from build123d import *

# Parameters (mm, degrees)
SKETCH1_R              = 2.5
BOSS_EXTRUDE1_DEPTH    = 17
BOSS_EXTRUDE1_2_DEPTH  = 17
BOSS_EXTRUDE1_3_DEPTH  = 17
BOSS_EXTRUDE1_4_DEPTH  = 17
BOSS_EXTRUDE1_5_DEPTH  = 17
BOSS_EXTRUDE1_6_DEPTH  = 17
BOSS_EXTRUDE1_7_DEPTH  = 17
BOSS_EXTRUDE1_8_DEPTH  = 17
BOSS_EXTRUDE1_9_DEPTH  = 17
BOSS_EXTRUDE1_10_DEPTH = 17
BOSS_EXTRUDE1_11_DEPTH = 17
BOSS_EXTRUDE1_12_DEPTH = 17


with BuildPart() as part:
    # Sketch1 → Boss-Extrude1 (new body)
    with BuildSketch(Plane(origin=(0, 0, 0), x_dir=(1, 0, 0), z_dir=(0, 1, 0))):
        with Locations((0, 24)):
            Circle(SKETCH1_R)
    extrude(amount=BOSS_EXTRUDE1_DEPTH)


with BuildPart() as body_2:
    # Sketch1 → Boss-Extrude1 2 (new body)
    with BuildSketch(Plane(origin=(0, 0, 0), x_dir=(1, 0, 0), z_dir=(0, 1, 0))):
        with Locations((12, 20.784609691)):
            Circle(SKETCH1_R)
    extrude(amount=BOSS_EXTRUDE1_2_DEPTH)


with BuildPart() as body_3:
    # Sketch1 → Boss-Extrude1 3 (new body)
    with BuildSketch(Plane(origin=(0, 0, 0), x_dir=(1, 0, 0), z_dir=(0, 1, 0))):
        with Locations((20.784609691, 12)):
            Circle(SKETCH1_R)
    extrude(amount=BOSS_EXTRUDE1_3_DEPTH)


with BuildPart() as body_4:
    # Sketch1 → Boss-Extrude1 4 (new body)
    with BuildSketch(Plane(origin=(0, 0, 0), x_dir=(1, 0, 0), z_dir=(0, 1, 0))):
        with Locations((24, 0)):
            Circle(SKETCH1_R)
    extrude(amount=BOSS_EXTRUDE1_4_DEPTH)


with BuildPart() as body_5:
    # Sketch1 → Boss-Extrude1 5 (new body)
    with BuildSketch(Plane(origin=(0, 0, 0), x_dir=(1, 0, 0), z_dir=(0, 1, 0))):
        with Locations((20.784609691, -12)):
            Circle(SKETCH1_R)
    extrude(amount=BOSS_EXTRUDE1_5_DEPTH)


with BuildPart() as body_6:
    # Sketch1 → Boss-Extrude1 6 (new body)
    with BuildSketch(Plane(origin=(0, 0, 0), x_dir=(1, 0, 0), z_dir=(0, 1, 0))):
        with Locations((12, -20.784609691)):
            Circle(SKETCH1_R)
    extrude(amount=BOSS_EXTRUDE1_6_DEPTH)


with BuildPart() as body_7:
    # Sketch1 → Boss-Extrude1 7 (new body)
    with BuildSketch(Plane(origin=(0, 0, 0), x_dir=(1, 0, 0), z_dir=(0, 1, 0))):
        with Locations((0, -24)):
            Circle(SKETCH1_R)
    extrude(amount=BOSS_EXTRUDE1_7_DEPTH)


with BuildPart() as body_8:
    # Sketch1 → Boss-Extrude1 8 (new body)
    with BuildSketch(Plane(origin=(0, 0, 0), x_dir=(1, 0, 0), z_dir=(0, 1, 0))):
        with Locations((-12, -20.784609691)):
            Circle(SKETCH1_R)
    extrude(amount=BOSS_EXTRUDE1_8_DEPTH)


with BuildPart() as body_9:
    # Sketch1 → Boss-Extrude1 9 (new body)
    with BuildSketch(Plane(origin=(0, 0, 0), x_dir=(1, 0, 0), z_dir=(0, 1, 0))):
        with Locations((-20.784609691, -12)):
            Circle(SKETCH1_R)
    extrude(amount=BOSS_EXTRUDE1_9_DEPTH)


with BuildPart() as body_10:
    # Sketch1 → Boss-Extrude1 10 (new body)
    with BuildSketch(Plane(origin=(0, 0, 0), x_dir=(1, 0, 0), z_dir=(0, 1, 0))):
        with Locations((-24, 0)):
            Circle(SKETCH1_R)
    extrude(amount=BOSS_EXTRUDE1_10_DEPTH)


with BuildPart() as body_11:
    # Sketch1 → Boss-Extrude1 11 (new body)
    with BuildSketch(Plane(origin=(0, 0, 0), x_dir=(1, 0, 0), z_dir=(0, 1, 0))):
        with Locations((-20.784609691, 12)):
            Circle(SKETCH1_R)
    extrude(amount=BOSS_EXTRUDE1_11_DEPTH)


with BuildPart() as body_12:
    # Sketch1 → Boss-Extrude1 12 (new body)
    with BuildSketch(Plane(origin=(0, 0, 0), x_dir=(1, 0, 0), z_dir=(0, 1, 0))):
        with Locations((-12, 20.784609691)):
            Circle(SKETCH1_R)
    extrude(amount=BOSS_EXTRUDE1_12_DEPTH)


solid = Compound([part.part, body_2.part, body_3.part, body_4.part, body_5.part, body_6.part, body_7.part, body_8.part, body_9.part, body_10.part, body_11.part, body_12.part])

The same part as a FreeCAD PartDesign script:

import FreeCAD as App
import Part
import Sketcher

V = App.Vector
Q = App.Units.Quantity

doc = App.newDocument("Part")
body = doc.addObject("PartDesign::Body", "Body")

sketch1 = body.newObject("Sketcher::SketchObject", "Sketch")
sketch1.AttachmentSupport = (doc.getObject("XZ_Plane"), [""])
sketch1.MapMode = "FlatFace"
sketch1.addGeometry(Part.Circle(V(0, -24, 0), V(0, 0, 1), 2.5), False)
sketch1.addConstraint([
    Sketcher.Constraint("PointOnObject", 0, 3, -2),
    Sketcher.Constraint("Diameter", 0, Q("5 mm")),
    Sketcher.Constraint("DistanceY", 0, 3, -1, 1, Q("24 mm")),
])
pad1 = body.newObject("PartDesign::Pad", "Pad")
pad1.Profile = sketch1
pad1.Length = 17
pad1.Reversed = True
body2 = doc.addObject("PartDesign::Body", "Body001")

sketch2 = body2.newObject("Sketcher::SketchObject", "Sketch001")
sketch2.AttachmentSupport = (doc.getObject("XZ_Plane001"), [""])
sketch2.MapMode = "FlatFace"
sketch2.addGeometry(Part.Circle(V(12, -20.78461, 0), V(0, 0, 1), 2.5), False)
sketch2.addConstraint([
    Sketcher.Constraint("Diameter", 0, Q("5 mm")),
    Sketcher.Constraint("DistanceX", -1, 1, 0, 3, Q("12 mm")),
    Sketcher.Constraint("DistanceY", 0, 3, -1, 1, Q("20.78461 mm")),
])
pad2 = body2.newObject("PartDesign::Pad", "Pad001")
pad2.Profile = sketch2
pad2.Length = 17
pad2.Reversed = True
body3 = doc.addObject("PartDesign::Body", "Body002")

sketch3 = body3.newObject("Sketcher::SketchObject", "Sketch002")
sketch3.AttachmentSupport = (doc.getObject("XZ_Plane002"), [""])
sketch3.MapMode = "FlatFace"
sketch3.addGeometry(Part.Circle(V(20.78461, -12, 0), V(0, 0, 1), 2.5), False)
sketch3.addConstraint([
    Sketcher.Constraint("Diameter", 0, Q("5 mm")),
    Sketcher.Constraint("DistanceY", 0, 3, -1, 1, Q("12 mm")),
    Sketcher.Constraint("DistanceX", -1, 1, 0, 3, Q("20.78461 mm")),
])
pad3 = body3.newObject("PartDesign::Pad", "Pad002")
pad3.Profile = sketch3
pad3.Length = 17
pad3.Reversed = True
body4 = doc.addObject("PartDesign::Body", "Body003")

sketch4 = body4.newObject("Sketcher::SketchObject", "Sketch003")
sketch4.AttachmentSupport = (doc.getObject("XZ_Plane003"), [""])
sketch4.MapMode = "FlatFace"
sketch4.addGeometry(Part.Circle(V(24, 0, 0), V(0, 0, 1), 2.5), False)
sketch4.addConstraint([
    Sketcher.Constraint("PointOnObject", 0, 3, -1),
    Sketcher.Constraint("Diameter", 0, Q("5 mm")),
    Sketcher.Constraint("DistanceX", -1, 1, 0, 3, Q("24 mm")),
])
pad4 = body4.newObject("PartDesign::Pad", "Pad003")
pad4.Profile = sketch4
pad4.Length = 17
pad4.Reversed = True
body5 = doc.addObject("PartDesign::Body", "Body004")

sketch5 = body5.newObject("Sketcher::SketchObject", "Sketch004")
sketch5.AttachmentSupport = (doc.getObject("XZ_Plane004"), [""])
sketch5.MapMode = "FlatFace"
sketch5.addGeometry(Part.Circle(V(20.78461, 12, 0), V(0, 0, 1), 2.5), False)
sketch5.addConstraint([
    Sketcher.Constraint("Diameter", 0, Q("5 mm")),
    Sketcher.Constraint("DistanceY", -1, 1, 0, 3, Q("12 mm")),
    Sketcher.Constraint("DistanceX", -1, 1, 0, 3, Q("20.78461 mm")),
])
pad5 = body5.newObject("PartDesign::Pad", "Pad004")
pad5.Profile = sketch5
pad5.Length = 17
pad5.Reversed = True
body6 = doc.addObject("PartDesign::Body", "Body005")

sketch6 = body6.newObject("Sketcher::SketchObject", "Sketch005")
sketch6.AttachmentSupport = (doc.getObject("XZ_Plane005"), [""])
sketch6.MapMode = "FlatFace"
sketch6.addGeometry(Part.Circle(V(12, 20.78461, 0), V(0, 0, 1), 2.5), False)
sketch6.addConstraint([
    Sketcher.Constraint("Diameter", 0, Q("5 mm")),
    Sketcher.Constraint("DistanceX", -1, 1, 0, 3, Q("12 mm")),
    Sketcher.Constraint("DistanceY", -1, 1, 0, 3, Q("20.78461 mm")),
])
pad6 = body6.newObject("PartDesign::Pad", "Pad005")
pad6.Profile = sketch6
pad6.Length = 17
pad6.Reversed = True
body7 = doc.addObject("PartDesign::Body", "Body006")

sketch7 = body7.newObject("Sketcher::SketchObject", "Sketch006")
sketch7.AttachmentSupport = (doc.getObject("XZ_Plane006"), [""])
sketch7.MapMode = "FlatFace"
sketch7.addGeometry(Part.Circle(V(0, 24, 0), V(0, 0, 1), 2.5), False)
sketch7.addConstraint([
    Sketcher.Constraint("PointOnObject", 0, 3, -2),
    Sketcher.Constraint("Diameter", 0, Q("5 mm")),
    Sketcher.Constraint("DistanceY", -1, 1, 0, 3, Q("24 mm")),
])
pad7 = body7.newObject("PartDesign::Pad", "Pad006")
pad7.Profile = sketch7
pad7.Length = 17
pad7.Reversed = True
body8 = doc.addObject("PartDesign::Body", "Body007")

sketch8 = body8.newObject("Sketcher::SketchObject", "Sketch007")
sketch8.AttachmentSupport = (doc.getObject("XZ_Plane007"), [""])
sketch8.MapMode = "FlatFace"
sketch8.addGeometry(Part.Circle(V(-12, 20.78461, 0), V(0, 0, 1), 2.5), False)
sketch8.addConstraint([
    Sketcher.Constraint("Diameter", 0, Q("5 mm")),
    Sketcher.Constraint("DistanceX", 0, 3, -1, 1, Q("12 mm")),
    Sketcher.Constraint("DistanceY", -1, 1, 0, 3, Q("20.78461 mm")),
])
pad8 = body8.newObject("PartDesign::Pad", "Pad007")
pad8.Profile = sketch8
pad8.Length = 17
pad8.Reversed = True
body9 = doc.addObject("PartDesign::Body", "Body008")

sketch9 = body9.newObject("Sketcher::SketchObject", "Sketch008")
sketch9.AttachmentSupport = (doc.getObject("XZ_Plane008"), [""])
sketch9.MapMode = "FlatFace"
sketch9.addGeometry(Part.Circle(V(-20.78461, 12, 0), V(0, 0, 1), 2.5), False)
sketch9.addConstraint([
    Sketcher.Constraint("Diameter", 0, Q("5 mm")),
    Sketcher.Constraint("DistanceY", -1, 1, 0, 3, Q("12 mm")),
    Sketcher.Constraint("DistanceX", 0, 3, -1, 1, Q("20.78461 mm")),
])
pad9 = body9.newObject("PartDesign::Pad", "Pad008")
pad9.Profile = sketch9
pad9.Length = 17
pad9.Reversed = True
body10 = doc.addObject("PartDesign::Body", "Body009")

sketch10 = body10.newObject("Sketcher::SketchObject", "Sketch009")
sketch10.AttachmentSupport = (doc.getObject("XZ_Plane009"), [""])
sketch10.MapMode = "FlatFace"
sketch10.addGeometry(Part.Circle(V(-24, 0, 0), V(0, 0, 1), 2.5), False)
sketch10.addConstraint([
    Sketcher.Constraint("PointOnObject", 0, 3, -1),
    Sketcher.Constraint("Diameter", 0, Q("5 mm")),
    Sketcher.Constraint("DistanceX", 0, 3, -1, 1, Q("24 mm")),
])
pad10 = body10.newObject("PartDesign::Pad", "Pad009")
pad10.Profile = sketch10
pad10.Length = 17
pad10.Reversed = True
body11 = doc.addObject("PartDesign::Body", "Body010")

sketch11 = body11.newObject("Sketcher::SketchObject", "Sketch010")
sketch11.AttachmentSupport = (doc.getObject("XZ_Plane010"), [""])
sketch11.MapMode = "FlatFace"
sketch11.addGeometry(Part.Circle(V(-20.78461, -12, 0), V(0, 0, 1), 2.5), False)
sketch11.addConstraint([
    Sketcher.Constraint("Diameter", 0, Q("5 mm")),
    Sketcher.Constraint("DistanceY", 0, 3, -1, 1, Q("12 mm")),
    Sketcher.Constraint("DistanceX", 0, 3, -1, 1, Q("20.78461 mm")),
])
pad11 = body11.newObject("PartDesign::Pad", "Pad010")
pad11.Profile = sketch11
pad11.Length = 17
pad11.Reversed = True
body12 = doc.addObject("PartDesign::Body", "Body011")

sketch12 = body12.newObject("Sketcher::SketchObject", "Sketch011")
sketch12.AttachmentSupport = (doc.getObject("XZ_Plane011"), [""])
sketch12.MapMode = "FlatFace"
sketch12.addGeometry(Part.Circle(V(-12, -20.78461, 0), V(0, 0, 1), 2.5), False)
sketch12.addConstraint([
    Sketcher.Constraint("Diameter", 0, Q("5 mm")),
    Sketcher.Constraint("DistanceX", 0, 3, -1, 1, Q("12 mm")),
    Sketcher.Constraint("DistanceY", 0, 3, -1, 1, Q("20.78461 mm")),
])
pad12 = body12.newObject("PartDesign::Pad", "Pad011")
pad12.Profile = sketch12
pad12.Length = 17
pad12.Reversed = True

doc.recompute()
